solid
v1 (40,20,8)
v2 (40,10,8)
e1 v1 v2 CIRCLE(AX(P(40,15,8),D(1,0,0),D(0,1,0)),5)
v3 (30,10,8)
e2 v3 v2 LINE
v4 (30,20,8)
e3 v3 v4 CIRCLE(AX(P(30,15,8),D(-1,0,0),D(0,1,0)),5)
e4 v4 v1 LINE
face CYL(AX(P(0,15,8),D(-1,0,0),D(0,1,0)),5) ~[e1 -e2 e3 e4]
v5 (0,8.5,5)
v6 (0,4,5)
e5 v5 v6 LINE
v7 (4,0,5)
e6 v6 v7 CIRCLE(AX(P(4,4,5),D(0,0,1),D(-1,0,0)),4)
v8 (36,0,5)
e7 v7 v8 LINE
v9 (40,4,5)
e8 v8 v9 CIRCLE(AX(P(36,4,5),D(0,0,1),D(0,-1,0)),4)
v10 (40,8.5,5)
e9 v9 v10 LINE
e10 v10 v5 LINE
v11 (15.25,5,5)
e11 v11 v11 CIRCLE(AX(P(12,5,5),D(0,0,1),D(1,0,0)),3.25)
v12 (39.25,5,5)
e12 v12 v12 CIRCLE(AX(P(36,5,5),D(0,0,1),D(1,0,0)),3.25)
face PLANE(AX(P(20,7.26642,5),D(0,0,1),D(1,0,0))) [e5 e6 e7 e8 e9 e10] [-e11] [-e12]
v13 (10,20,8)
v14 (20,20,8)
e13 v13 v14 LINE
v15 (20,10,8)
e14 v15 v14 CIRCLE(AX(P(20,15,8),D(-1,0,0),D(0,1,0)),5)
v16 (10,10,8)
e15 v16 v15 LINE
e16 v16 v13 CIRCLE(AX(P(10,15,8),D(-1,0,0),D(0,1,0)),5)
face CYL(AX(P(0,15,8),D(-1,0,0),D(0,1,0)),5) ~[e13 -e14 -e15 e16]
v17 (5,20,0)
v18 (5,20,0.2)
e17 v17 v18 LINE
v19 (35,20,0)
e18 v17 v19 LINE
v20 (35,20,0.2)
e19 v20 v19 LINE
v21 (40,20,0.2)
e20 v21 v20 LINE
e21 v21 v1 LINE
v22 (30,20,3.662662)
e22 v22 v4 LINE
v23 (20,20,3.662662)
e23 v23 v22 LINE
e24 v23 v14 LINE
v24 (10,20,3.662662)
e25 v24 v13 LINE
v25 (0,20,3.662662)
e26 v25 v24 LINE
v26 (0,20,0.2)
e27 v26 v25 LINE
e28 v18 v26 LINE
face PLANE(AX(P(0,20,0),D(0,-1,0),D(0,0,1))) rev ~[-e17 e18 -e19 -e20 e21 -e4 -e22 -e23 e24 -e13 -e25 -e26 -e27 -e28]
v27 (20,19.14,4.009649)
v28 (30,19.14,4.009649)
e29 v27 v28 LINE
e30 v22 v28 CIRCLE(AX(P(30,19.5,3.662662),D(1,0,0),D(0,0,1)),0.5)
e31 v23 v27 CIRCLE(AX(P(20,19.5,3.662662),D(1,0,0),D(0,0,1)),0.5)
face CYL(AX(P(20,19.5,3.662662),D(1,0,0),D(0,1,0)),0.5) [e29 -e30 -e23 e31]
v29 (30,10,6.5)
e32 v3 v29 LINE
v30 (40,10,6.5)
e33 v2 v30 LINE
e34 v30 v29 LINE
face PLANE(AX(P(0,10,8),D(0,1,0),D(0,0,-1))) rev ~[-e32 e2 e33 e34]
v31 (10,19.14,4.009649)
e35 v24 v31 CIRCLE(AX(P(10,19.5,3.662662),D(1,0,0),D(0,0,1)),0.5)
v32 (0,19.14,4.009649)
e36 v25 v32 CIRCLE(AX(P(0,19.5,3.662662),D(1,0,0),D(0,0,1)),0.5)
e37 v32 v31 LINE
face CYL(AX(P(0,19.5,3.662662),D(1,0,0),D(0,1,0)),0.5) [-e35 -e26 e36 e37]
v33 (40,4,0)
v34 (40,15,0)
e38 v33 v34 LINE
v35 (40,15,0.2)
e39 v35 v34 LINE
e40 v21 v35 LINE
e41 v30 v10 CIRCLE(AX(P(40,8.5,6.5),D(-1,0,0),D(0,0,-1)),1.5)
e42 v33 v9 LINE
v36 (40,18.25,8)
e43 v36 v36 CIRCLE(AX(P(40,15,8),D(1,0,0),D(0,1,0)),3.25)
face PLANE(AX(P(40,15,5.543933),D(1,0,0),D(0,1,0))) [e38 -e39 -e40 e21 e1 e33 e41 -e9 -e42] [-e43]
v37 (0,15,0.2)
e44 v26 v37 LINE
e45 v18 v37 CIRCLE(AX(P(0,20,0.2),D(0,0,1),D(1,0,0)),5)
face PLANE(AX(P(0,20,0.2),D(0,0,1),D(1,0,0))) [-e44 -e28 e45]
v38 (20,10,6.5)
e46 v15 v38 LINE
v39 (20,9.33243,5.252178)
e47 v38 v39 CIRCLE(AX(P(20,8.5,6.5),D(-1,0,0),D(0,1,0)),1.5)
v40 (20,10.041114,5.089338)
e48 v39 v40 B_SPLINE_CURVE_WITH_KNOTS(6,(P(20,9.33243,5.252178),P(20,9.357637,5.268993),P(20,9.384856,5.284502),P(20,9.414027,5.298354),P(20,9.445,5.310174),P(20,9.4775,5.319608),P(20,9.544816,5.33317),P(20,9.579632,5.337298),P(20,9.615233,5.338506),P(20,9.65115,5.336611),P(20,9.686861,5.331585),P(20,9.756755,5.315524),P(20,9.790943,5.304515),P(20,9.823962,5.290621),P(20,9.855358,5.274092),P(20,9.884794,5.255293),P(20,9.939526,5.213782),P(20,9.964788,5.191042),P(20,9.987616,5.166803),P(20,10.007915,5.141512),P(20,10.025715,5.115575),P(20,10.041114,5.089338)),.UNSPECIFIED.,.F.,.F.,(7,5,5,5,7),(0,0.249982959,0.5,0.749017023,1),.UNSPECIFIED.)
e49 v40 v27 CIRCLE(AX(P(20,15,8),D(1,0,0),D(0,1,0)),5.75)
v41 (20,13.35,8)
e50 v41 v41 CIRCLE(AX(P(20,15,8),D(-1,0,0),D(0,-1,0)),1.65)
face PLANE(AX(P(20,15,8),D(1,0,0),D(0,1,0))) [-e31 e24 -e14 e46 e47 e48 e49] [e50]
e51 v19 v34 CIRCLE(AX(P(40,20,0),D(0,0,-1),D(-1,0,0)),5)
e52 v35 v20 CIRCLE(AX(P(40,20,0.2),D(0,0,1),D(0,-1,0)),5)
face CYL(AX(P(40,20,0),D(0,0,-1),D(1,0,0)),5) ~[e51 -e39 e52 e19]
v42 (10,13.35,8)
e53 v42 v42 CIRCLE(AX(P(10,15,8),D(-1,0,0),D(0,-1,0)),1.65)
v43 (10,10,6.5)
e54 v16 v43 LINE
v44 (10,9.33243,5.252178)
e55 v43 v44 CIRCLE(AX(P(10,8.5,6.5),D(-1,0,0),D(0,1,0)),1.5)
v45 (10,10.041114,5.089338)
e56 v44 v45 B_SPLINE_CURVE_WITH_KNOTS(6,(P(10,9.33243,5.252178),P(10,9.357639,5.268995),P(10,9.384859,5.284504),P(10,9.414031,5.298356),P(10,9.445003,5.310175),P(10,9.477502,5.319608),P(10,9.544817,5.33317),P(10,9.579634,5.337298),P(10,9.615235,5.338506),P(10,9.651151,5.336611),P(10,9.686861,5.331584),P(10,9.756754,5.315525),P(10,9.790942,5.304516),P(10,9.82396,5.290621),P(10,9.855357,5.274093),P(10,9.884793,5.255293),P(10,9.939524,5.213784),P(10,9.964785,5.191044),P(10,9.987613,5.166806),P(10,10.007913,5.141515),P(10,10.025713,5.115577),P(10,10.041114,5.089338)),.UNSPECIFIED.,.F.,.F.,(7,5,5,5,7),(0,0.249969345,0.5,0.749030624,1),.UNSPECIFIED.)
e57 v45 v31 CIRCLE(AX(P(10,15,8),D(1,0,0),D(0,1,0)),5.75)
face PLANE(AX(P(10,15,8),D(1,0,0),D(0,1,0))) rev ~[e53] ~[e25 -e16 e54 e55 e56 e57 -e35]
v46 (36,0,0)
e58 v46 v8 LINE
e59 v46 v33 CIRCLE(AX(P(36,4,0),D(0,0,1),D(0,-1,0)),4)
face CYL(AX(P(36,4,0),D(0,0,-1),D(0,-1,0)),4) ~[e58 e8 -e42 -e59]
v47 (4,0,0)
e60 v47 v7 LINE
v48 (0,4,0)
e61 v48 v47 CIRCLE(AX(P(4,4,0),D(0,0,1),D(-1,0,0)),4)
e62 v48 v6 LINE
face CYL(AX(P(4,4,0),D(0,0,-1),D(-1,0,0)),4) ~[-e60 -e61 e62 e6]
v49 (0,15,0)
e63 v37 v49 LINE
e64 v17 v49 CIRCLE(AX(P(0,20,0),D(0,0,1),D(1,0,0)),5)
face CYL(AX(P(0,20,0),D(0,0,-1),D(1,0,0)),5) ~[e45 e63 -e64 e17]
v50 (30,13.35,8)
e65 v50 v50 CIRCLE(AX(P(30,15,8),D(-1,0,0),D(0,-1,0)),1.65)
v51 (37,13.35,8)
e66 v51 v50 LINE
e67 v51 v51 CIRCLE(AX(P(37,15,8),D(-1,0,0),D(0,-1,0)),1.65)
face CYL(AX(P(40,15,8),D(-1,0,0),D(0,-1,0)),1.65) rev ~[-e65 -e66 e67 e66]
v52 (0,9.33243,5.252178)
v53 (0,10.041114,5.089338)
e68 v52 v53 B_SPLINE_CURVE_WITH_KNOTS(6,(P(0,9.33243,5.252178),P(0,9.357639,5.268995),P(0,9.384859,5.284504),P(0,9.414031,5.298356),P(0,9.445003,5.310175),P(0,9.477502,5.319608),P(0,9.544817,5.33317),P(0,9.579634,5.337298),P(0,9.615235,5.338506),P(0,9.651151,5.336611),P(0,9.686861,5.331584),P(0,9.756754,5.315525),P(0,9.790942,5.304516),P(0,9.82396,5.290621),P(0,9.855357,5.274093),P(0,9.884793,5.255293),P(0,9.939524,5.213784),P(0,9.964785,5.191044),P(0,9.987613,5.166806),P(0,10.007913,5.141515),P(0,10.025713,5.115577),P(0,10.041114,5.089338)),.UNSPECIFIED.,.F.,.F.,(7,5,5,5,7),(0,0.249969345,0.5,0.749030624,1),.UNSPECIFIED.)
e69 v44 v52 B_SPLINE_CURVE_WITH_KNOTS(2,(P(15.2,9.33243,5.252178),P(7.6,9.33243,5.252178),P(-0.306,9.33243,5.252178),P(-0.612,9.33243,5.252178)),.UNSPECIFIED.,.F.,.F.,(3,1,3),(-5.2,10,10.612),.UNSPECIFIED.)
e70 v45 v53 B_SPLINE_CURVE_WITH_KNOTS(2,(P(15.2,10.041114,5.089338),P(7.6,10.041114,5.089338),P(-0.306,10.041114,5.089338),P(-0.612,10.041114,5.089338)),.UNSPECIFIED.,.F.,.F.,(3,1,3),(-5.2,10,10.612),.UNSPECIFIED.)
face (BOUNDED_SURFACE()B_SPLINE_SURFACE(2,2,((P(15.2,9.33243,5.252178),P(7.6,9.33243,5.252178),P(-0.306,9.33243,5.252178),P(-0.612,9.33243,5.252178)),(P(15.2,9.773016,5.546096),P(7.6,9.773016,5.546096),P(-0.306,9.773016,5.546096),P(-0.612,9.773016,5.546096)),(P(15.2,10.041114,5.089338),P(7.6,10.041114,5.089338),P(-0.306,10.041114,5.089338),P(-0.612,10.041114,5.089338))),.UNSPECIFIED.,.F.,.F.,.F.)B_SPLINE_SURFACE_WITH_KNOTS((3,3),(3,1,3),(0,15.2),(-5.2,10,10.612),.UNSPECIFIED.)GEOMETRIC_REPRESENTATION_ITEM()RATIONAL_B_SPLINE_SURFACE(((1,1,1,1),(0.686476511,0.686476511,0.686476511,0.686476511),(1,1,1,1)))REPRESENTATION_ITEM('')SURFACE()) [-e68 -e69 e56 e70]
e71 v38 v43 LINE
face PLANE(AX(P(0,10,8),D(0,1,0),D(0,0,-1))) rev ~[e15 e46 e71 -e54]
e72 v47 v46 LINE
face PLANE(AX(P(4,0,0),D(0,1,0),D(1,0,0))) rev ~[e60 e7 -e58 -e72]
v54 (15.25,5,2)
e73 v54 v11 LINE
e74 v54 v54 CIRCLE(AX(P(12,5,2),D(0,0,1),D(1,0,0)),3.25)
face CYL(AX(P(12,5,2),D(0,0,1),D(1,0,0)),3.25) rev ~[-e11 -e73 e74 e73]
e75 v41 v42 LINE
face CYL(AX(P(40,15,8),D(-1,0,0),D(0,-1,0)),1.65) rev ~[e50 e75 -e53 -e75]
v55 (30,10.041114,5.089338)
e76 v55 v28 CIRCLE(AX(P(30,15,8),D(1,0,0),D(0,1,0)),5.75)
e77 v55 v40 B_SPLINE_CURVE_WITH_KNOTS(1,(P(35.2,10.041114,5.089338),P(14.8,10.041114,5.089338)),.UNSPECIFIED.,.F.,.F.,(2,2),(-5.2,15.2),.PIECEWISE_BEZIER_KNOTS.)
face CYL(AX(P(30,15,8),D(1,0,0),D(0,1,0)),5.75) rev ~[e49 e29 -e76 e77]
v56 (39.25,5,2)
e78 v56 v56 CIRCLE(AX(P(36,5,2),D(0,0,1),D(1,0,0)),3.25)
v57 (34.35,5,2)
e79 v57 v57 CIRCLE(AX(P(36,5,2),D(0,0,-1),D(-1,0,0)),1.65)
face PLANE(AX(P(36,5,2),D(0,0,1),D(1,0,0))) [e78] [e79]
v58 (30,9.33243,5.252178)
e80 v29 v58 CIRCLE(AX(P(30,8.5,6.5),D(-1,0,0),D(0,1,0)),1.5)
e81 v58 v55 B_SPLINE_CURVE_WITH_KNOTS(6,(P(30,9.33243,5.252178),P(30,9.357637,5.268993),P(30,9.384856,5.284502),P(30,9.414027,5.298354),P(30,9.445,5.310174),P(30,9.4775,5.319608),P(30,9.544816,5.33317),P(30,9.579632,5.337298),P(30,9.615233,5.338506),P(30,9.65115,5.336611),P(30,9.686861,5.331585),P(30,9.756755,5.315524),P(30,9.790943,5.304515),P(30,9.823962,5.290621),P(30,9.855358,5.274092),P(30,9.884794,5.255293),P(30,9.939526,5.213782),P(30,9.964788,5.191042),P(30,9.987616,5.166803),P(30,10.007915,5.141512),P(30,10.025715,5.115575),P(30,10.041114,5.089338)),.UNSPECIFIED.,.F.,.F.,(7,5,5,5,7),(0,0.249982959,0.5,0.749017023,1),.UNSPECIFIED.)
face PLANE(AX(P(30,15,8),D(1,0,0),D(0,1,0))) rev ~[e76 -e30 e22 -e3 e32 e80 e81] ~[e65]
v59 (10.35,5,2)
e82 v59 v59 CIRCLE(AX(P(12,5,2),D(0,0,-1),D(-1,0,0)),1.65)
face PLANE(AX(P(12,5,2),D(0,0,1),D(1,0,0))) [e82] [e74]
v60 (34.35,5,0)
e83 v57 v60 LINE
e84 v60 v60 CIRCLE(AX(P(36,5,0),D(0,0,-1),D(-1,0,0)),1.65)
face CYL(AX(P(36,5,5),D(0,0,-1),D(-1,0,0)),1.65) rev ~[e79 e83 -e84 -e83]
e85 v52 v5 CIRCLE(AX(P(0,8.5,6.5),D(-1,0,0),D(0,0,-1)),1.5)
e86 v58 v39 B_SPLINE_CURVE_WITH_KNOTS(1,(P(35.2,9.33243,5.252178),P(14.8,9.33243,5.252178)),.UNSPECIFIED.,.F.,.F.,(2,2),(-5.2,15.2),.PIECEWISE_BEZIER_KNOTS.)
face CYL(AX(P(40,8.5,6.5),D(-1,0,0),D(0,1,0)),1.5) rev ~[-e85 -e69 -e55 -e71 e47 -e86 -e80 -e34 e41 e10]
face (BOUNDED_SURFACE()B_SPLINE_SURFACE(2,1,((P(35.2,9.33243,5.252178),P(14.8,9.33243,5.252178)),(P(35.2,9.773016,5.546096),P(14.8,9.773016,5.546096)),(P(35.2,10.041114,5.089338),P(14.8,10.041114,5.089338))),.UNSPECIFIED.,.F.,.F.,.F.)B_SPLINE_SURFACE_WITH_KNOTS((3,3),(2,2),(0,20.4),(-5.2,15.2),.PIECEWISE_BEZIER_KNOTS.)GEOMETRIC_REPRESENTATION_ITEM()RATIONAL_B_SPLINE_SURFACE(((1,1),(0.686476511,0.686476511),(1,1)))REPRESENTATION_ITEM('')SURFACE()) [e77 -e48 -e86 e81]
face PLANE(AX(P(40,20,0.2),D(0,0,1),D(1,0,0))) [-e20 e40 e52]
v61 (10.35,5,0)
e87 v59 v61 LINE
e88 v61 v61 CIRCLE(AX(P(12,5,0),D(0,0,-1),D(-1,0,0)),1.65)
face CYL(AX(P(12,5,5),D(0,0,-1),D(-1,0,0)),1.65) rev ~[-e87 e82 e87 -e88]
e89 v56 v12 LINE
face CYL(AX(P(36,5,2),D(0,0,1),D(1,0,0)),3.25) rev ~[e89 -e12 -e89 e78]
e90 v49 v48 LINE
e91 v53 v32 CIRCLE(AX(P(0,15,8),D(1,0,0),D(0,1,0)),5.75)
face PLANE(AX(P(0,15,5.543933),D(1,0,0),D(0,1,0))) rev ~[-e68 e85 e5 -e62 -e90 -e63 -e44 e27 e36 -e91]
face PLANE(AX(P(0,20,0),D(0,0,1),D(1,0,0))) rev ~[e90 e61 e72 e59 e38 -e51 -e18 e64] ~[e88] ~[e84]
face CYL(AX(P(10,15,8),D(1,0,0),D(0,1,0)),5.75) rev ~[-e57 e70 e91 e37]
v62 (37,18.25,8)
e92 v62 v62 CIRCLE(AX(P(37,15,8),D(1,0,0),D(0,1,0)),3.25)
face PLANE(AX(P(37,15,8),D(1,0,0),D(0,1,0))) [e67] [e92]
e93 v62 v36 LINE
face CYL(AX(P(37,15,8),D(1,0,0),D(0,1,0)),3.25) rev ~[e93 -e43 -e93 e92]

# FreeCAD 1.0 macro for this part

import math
import FreeCAD as App
import Part
import Sketcher

V = App.Vector


def edges_at(feature, points):
    """Names of the edges that pass closest to the given points."""
    edges = feature.Shape.Edges
    near = lambda p: min(range(len(edges)), key=lambda i: edges[i].distToShape(Part.Vertex(*p))[0])
    return sorted({f"Edge{near(p) + 1}" for p in points})

doc = App.newDocument("Part")
body = doc.addObject("PartDesign::Body", "Body")

sketch1 = body.newObject("Sketcher::SketchObject", "Sketch")
sketch1.AttachmentSupport = (doc.getObject("XY_Plane"), [""])
sketch1.MapMode = "FlatFace"
sketch1.addGeometry(Part.ArcOfCircle(Part.Circle(V(4, 4, 0), V(0, 0, 1), 4), math.radians(180), math.radians(270)), False)
sketch1.addGeometry(Part.LineSegment(V(4, 0, 0), V(36, 0, 0)), False)
sketch1.addGeometry(Part.ArcOfCircle(Part.Circle(V(36, 4, 0), V(0, 0, 1), 4), math.radians(-90), math.radians(0)), False)
sketch1.addGeometry(Part.LineSegment(V(40, 4, 0), V(40, 14, 0)), False)
sketch1.addGeometry(Part.LineSegment(V(40, 14, 0), V(0, 14, 0)), False)
sketch1.addGeometry(Part.LineSegment(V(0, 14, 0), V(0, 4, 0)), False)
sketch1.addConstraint(Sketcher.Constraint("Tangent", 0, 2, 1, 1))
sketch1.addConstraint(Sketcher.Constraint("Tangent", 1, 2, 2, 1))
sketch1.addConstraint(Sketcher.Constraint("Tangent", 2, 2, 3, 1))
sketch1.addConstraint(Sketcher.Constraint("Coincident", 3, 2, 4, 1))
sketch1.addConstraint(Sketcher.Constraint("Coincident", 4, 2, 5, 1))
sketch1.addConstraint(Sketcher.Constraint("Tangent", 5, 2, 0, 1))
sketch1.addConstraint(Sketcher.Constraint("Horizontal", 1))
sketch1.addConstraint(Sketcher.Constraint("Vertical", 3))
sketch1.addConstraint(Sketcher.Constraint("Horizontal", 4))
sketch1.addConstraint(Sketcher.Constraint("Vertical", 5))
sketch1.addConstraint(Sketcher.Constraint("Equal", 0, 2))
sketch1.addConstraint(Sketcher.Constraint("PointOnObject", 0, 2, -1))
sketch1.addConstraint(Sketcher.Constraint("PointOnObject", 4, 2, -2))
sketch1.addConstraint(Sketcher.Constraint("Radius", 0, 4.0))
sketch1.addConstraint(Sketcher.Constraint("DistanceX", 1, 1, 1, 2, 32.0))
sketch1.addConstraint(Sketcher.Constraint("DistanceY", 3, 1, 3, 2, 10.0))
pad1 = body.newObject("PartDesign::Pad", "Pad")
pad1.Profile = sketch1
pad1.Length = 5

sketch2 = body.newObject("Sketcher::SketchObject", "Sketch001")
sketch2.AttachmentSupport = (doc.getObject("XY_Plane"), [""])
sketch2.MapMode = "FlatFace"
sketch2.AttachmentOffset = App.Placement(V(0, 0, 5), App.Rotation())
sketch2.addGeometry(Part.Circle(V(12, 5, 0), V(0, 0, 1), 1.6), False)
sketch2.addGeometry(Part.Circle(V(36, 5, 0), V(0, 0, 1), 1.6), False)
sketch2.addConstraint(Sketcher.Constraint("Equal", 0, 1))
sketch2.addConstraint(Sketcher.Constraint("Horizontal", 0, 3, 1, 3))
sketch2.addConstraint(Sketcher.Constraint("Diameter", 0, 3.3))
sketch2.addConstraint(Sketcher.Constraint("DistanceX", -1, 1, 0, 3, 12.0))
sketch2.addConstraint(Sketcher.Constraint("DistanceY", -1, 1, 0, 3, 5.0))
sketch2.addConstraint(Sketcher.Constraint("DistanceX", -1, 1, 1, 3, 36.0))
doc.recompute()
hole = body.newObject("PartDesign::Hole", "Hole")
hole.Profile = sketch2
hole.ThreadType = "None"
hole.Diameter = 3.3
hole.DepthType = "ThroughAll"
hole.HoleCutType = "Counterbore"
hole.HoleCutDiameter = 6.5
hole.HoleCutDepth = 3

sketch3 = body.newObject("Sketcher::SketchObject", "Sketch002")
sketch3.AttachmentSupport = (doc.getObject("YZ_Plane"), [""])
sketch3.MapMode = "FlatFace"
sketch3.addGeometry(Part.LineSegment(V(10, 8, 0), V(10, 0, 0)), False)
sketch3.addGeometry(Part.LineSegment(V(10, 0, 0), V(20, 0, 0)), False)
sketch3.addGeometry(Part.LineSegment(V(20, 0, 0), V(20, 8, 0)), False)
sketch3.addGeometry(Part.ArcOfCircle(Part.Circle(V(15, 8, 0), V(0, 0, 1), 5), math.radians(0), math.radians(180)), False)
sketch3.addConstraint(Sketcher.Constraint("Coincident", 0, 2, 1, 1))
sketch3.addConstraint(Sketcher.Constraint("Coincident", 1, 2, 2, 1))
sketch3.addConstraint(Sketcher.Constraint("Tangent", 2, 2, 3, 1))
sketch3.addConstraint(Sketcher.Constraint("Tangent", 3, 2, 0, 1))
sketch3.addConstraint(Sketcher.Constraint("Vertical", 0))
sketch3.addConstraint(Sketcher.Constraint("Horizontal", 1))
sketch3.addConstraint(Sketcher.Constraint("Vertical", 2))
sketch3.addConstraint(Sketcher.Constraint("PointOnObject", 0, 2, -1))
sketch3.addConstraint(Sketcher.Constraint("Radius", 3, 5.0))
sketch3.addConstraint(Sketcher.Constraint("DistanceY", 0, 2, 0, 1, 8.0))
sketch3.addConstraint(Sketcher.Constraint("DistanceX", -1, 1, 3, 3, 15.0))
pad2 = body.newObject("PartDesign::Pad", "Pad001")
pad2.Profile = sketch3
pad2.Length = 40
doc.recompute()

fillet = body.newObject("PartDesign::Fillet", "Fillet")
fillet.Base = (pad2, edges_at(pad2, [(20, 10, 5)]))
fillet.Radius = 1.5

sketch4 = body.newObject("Sketcher::SketchObject", "Sketch003")
sketch4.AttachmentSupport = (doc.getObject("YZ_Plane"), [""])
sketch4.MapMode = "FlatFace"
sketch4.AttachmentOffset = App.Placement(V(0, 0, 40), App.Rotation())
sketch4.addGeometry(Part.Circle(V(15, 8, 0), V(0, 0, 1), 1.6), False)
sketch4.addConstraint(Sketcher.Constraint("Diameter", 0, 3.3))
sketch4.addConstraint(Sketcher.Constraint("DistanceX", -1, 1, 0, 3, 15.0))
sketch4.addConstraint(Sketcher.Constraint("DistanceY", -1, 1, 0, 3, 8.0))
doc.recompute()
hole2 = body.newObject("PartDesign::Hole", "Hole001")
hole2.Profile = sketch4
hole2.ThreadType = "None"
hole2.Diameter = 3.3
hole2.DepthType = "ThroughAll"
hole2.HoleCutType = "Counterbore"
hole2.HoleCutDiameter = 6.5
hole2.HoleCutDepth = 3

sketch5 = body.newObject("Sketcher::SketchObject", "Sketch004")
sketch5.AttachmentSupport = (doc.getObject("YZ_Plane"), [""])
sketch5.MapMode = "FlatFace"
sketch5.AttachmentOffset = App.Placement(V(0, 0, 30), App.Rotation())
sketch5.addGeometry(Part.Circle(V(15, 8, 0), V(0, 0, 1), 6), False)
sketch5.addConstraint(Sketcher.Constraint("Diameter", 0, 11.5))
sketch5.addConstraint(Sketcher.Constraint("DistanceX", -1, 1, 0, 3, 15.0))
sketch5.addConstraint(Sketcher.Constraint("DistanceY", -1, 1, 0, 3, 8.0))
pocket1 = body.newObject("PartDesign::Pocket", "Pocket")
pocket1.Profile = sketch5
pocket1.Length = 10

sketch6 = body.newObject("Sketcher::SketchObject", "Sketch005")
sketch6.AttachmentSupport = (doc.getObject("YZ_Plane"), [""])
sketch6.MapMode = "FlatFace"
sketch6.AttachmentOffset = App.Placement(V(0, 0, 10), App.Rotation())
sketch6.addGeometry(Part.Circle(V(15, 8, 0), V(0, 0, 1), 6), False)
sketch6.addConstraint(Sketcher.Constraint("Diameter", 0, 11.5))
sketch6.addConstraint(Sketcher.Constraint("DistanceX", -1, 1, 0, 3, 15.0))
sketch6.addConstraint(Sketcher.Constraint("DistanceY", -1, 1, 0, 3, 8.0))
pocket2 = body.newObject("PartDesign::Pocket", "Pocket001")
pocket2.Profile = sketch6
pocket2.Type = "ThroughAll"
doc.recompute()

fillet2 = body.newObject("PartDesign::Fillet", "Fillet001")
fillet2.Base = (pocket2, edges_at(pocket2, [
    (5, 9.746, 5.664),
    (5, 20, 5.161),
    (25, 20, 5.161),
    (25, 9.746, 5.664),
]))
fillet2.Radius = 0.5

sketch7 = body.newObject("Sketcher::SketchObject", "Sketch006")
sketch7.AttachmentSupport = (doc.getObject("XY_Plane"), [""])
sketch7.MapMode = "FlatFace"
sketch7.addGeometry(Part.Circle(V(0, 20, 0), V(0, 0, 1), 5), False)
sketch7.addGeometry(Part.Circle(V(40, 20, 0), V(0, 0, 1), 5), False)
sketch7.addConstraint(Sketcher.Constraint("Equal", 0, 1))
sketch7.addConstraint(Sketcher.Constraint("PointOnObject", 0, 3, -2))
sketch7.addConstraint(Sketcher.Constraint("Horizontal", 0, 3, 1, 3))
sketch7.addConstraint(Sketcher.Constraint("Diameter", 0, 10.0))
sketch7.addConstraint(Sketcher.Constraint("DistanceY", -1, 1, 0, 3, 20.0))
sketch7.addConstraint(Sketcher.Constraint("DistanceX", -1, 1, 1, 3, 40.0))
pad3 = body.newObject("PartDesign::Pad", "Pad002")
pad3.Profile = sketch7
pad3.Length = 0.2

doc.recompute()
